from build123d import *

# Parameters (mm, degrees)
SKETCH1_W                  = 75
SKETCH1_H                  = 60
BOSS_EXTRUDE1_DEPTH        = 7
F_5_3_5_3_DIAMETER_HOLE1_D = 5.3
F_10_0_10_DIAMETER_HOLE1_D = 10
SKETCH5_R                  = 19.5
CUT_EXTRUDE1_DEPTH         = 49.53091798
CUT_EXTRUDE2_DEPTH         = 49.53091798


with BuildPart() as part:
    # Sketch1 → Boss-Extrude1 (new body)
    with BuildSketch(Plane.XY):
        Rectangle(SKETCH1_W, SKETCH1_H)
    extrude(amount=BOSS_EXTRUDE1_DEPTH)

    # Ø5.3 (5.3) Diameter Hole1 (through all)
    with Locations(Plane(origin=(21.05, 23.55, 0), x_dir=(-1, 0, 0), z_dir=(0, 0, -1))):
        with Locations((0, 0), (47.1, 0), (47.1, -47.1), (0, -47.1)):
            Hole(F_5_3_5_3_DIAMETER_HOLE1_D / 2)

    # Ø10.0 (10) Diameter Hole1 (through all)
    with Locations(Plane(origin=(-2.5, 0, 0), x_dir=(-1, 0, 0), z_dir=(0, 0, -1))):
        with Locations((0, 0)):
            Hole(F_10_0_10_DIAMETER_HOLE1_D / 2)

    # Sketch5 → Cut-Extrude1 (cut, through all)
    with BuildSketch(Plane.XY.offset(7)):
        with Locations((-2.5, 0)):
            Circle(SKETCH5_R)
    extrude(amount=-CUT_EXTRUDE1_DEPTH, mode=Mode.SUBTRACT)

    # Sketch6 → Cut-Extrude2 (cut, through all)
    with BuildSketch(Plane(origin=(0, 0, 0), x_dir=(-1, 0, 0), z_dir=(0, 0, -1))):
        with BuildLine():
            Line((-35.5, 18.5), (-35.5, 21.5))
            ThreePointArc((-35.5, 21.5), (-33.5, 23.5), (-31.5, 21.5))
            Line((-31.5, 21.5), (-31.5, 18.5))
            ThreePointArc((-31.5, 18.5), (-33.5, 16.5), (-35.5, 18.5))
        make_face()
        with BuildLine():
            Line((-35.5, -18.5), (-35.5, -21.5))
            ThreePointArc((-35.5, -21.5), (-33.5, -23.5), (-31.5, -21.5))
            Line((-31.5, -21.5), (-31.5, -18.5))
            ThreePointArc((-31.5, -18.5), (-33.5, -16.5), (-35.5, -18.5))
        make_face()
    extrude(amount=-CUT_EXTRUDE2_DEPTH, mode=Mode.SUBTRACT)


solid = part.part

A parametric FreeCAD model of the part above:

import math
import FreeCAD as App
import Part
import Sketcher
from FreeCAD import Vector
Q = App.Units.Quantity

doc = App.newDocument("Part")
params = doc.addObject("Spreadsheet::Sheet", "Params")
for row, (alias, value) in enumerate([
    ("sketch1_width", "75 mm"),
    ("sketch1_height", "60 mm"),
    ("pad1_length", "7 mm"),
    ("sketch2_diameter", "5.3 mm"),
    ("hole_diameter", "5.3 mm"),
    ("sketch3_diameter", "10 mm"),
    ("hole2_diameter", "10 mm"),
    ("sketch4_diameter", "39 mm"),
    ("sketch5_radius", "2 mm"),
    ("sketch5_height", "3 mm"),
], start=1):
    params.set(f"A{row}", alias)
    params.set(f"B{row}", "=" + value)
    params.setAlias(f"B{row}", alias)

body = doc.addObject("PartDesign::Body", "Body")

# Sketch on XY plane
sketch1 = body.newObject("Sketcher::SketchObject", "Sketch")
sketch1.AttachmentSupport = (doc.getObject("XY_Plane"), [""])
sketch1.MapMode = "FlatFace"
sketch1.addGeometry(Part.LineSegment(Vector(-38, 30, 0), Vector(-38, -30, 0)), False)
sketch1.addGeometry(Part.LineSegment(Vector(-38, -30, 0), Vector(38, -30, 0)), False)
sketch1.addGeometry(Part.LineSegment(Vector(38, -30, 0), Vector(38, 30, 0)), False)
sketch1.addGeometry(Part.LineSegment(Vector(38, 30, 0), Vector(-38, 30, 0)), False)
sketch1.addConstraint(Sketcher.Constraint("Coincident", 0, 2, 1, 1))
sketch1.addConstraint(Sketcher.Constraint("Coincident", 1, 2, 2, 1))
sketch1.addConstraint(Sketcher.Constraint("Coincident", 2, 2, 3, 1))
sketch1.addConstraint(Sketcher.Constraint("Coincident", 3, 2, 0, 1))
sketch1.addConstraint(Sketcher.Constraint("Vertical", 0))
sketch1.addConstraint(Sketcher.Constraint("Horizontal", 1))
sketch1.addConstraint(Sketcher.Constraint("Vertical", 2))
sketch1.addConstraint(Sketcher.Constraint("Horizontal", 3))
sketch1.addConstraint(Sketcher.Constraint("Symmetric", 0, 2, 2, 2, -1, 1))
sketch1.addConstraint(Sketcher.Constraint("DistanceX", 1, 1, 1, 2, Q("75 mm")))
sketch1.addConstraint(Sketcher.Constraint("DistanceY", 0, 2, 0, 1, Q("60 mm")))
sketch1.setExpression("Constraints[9]", "Params.sketch1_width")
sketch1.setExpression("Constraints[10]", "Params.sketch1_height")
pad1 = body.newObject("PartDesign::Pad", "Pad")
pad1.Profile = sketch1
pad1.setExpression("Length", "Params.pad1_length")

# Sketch on XY plane
sketch2 = body.newObject("Sketcher::SketchObject", "Sketch001")
sketch2.AttachmentSupport = (doc.getObject("XY_Plane"), [""])
sketch2.MapMode = "FlatFace"
sketch2.addGeometry(Part.Circle(Vector(21.1, 23.6, 0), Vector(0, 0, 1), 2.6), False)
sketch2.addGeometry(Part.Circle(Vector(-26.1, 23.6, 0), Vector(0, 0, 1), 2.6), False)
sketch2.addGeometry(Part.Circle(Vector(-26.1, -23.6, 0), Vector(0, 0, 1), 2.6), False)
sketch2.addGeometry(Part.Circle(Vector(21.1, -23.6, 0), Vector(0, 0, 1), 2.6), False)
sketch2.addConstraint(Sketcher.Constraint("Equal", 0, 1))
sketch2.addConstraint(Sketcher.Constraint("Equal", 1, 2))
sketch2.addConstraint(Sketcher.Constraint("Equal", 2, 3))
sketch2.addConstraint(Sketcher.Constraint("Symmetric", 1, 3, 2, 3, -1))
sketch2.addConstraint(Sketcher.Constraint("Symmetric", 0, 3, 3, 3, -1))
sketch2.addConstraint(Sketcher.Constraint("Horizontal", 0, 3, 1, 3))
sketch2.addConstraint(Sketcher.Constraint("Diameter", 0, Q("5.3 mm")))
sketch2.addConstraint(Sketcher.Constraint("DistanceX", 1, 3, 0, 3, Q("47.1 mm")))
sketch2.addConstraint(Sketcher.Constraint("DistanceY", 2, 3, 1, 3, Q("47.1 mm")))
sketch2.addConstraint(Sketcher.Constraint("DistanceX", -1, 1, 0, 3, Q("21.05 mm")))
sketch2.setExpression("Constraints[6]", "Params.sketch2_diameter")
doc.recompute()
hole = body.newObject("PartDesign::Hole", "Hole")
hole.Profile = sketch2
hole.ThreadType = "None"
hole.setExpression("Diameter", "Params.hole_diameter")
hole.DepthType = "ThroughAll"
hole.Reversed = True

# Sketch on XY plane
sketch3 = body.newObject("Sketcher::SketchObject", "Sketch002")
sketch3.AttachmentSupport = (doc.getObject("XY_Plane"), [""])
sketch3.MapMode = "FlatFace"
sketch3.addGeometry(Part.Circle(Vector(-2, 0, 0), Vector(0, 0, 1), 5), False)
sketch3.addConstraint(Sketcher.Constraint("PointOnObject", 0, 3, -1))
sketch3.addConstraint(Sketcher.Constraint("Diameter", 0, Q("10 mm")))
sketch3.addConstraint(Sketcher.Constraint("DistanceX", 0, 3, -1, 1, Q("2.5 mm")))
sketch3.setExpression("Constraints[1]", "Params.sketch3_diameter")
doc.recompute()
hole2 = body.newObject("PartDesign::Hole", "Hole001")
hole2.Profile = sketch3
hole2.ThreadType = "None"
hole2.setExpression("Diameter", "Params.hole2_diameter")
hole2.DepthType = "ThroughAll"
hole2.Reversed = True

# Sketch on XY plane
sketch4 = body.newObject("Sketcher::SketchObject", "Sketch003")
sketch4.AttachmentSupport = (doc.getObject("XY_Plane"), [""])
sketch4.MapMode = "FlatFace"
sketch4.AttachmentOffset = App.Placement(Vector(0, 0, 7), App.Rotation())
sketch4.addGeometry(Part.Circle(Vector(-2, 0, 0), Vector(0, 0, 1), 20), False)
sketch4.addConstraint(Sketcher.Constraint("PointOnObject", 0, 3, -1))
sketch4.addConstraint(Sketcher.Constraint("Diameter", 0, Q("39 mm")))
sketch4.addConstraint(Sketcher.Constraint("DistanceX", 0, 3, -1, 1, Q("2.5 mm")))
sketch4.setExpression("Constraints[1]", "Params.sketch4_diameter")
pocket1 = body.newObject("PartDesign::Pocket", "Pocket")
pocket1.Profile = sketch4
pocket1.Type = "ThroughAll"

# Sketch on XY plane
sketch5 = body.newObject("Sketcher::SketchObject", "Sketch004")
sketch5.AttachmentSupport = (doc.getObject("XY_Plane"), [""])
sketch5.MapMode = "FlatFace"
sketch5.addGeometry(Part.LineSegment(Vector(35.5, 21.5, 0), Vector(35.5, 18.5, 0)), False)
sketch5.addGeometry(Part.ArcOfCircle(Part.Circle(Vector(33.5, 18.5, 0), Vector(0, 0, 1), 2), math.radians(180), math.radians(360)), False)
sketch5.addGeometry(Part.LineSegment(Vector(31.5, 18.5, 0), Vector(31.5, 21.5, 0)), False)
sketch5.addGeometry(Part.ArcOfCircle(Part.Circle(Vector(33.5, 21.5, 0), Vector(0, 0, 1), 2), math.radians(0), math.radians(180)), False)
sketch5.addGeometry(Part.LineSegment(Vector(35.5, -18.5, 0), Vector(35.5, -21.5, 0)), False)
sketch5.addGeometry(Part.ArcOfCircle(Part.Circle(Vector(33.5, -21.5, 0), Vector(0, 0, 1), 2), math.radians(180), math.radians(360)), False)
sketch5.addGeometry(Part.LineSegment(Vector(31.5, -21.5, 0), Vector(31.5, -18.5, 0)), False)
sketch5.addGeometry(Part.ArcOfCircle(Part.Circle(Vector(33.5, -18.5, 0), Vector(0, 0, 1), 2), math.radians(0), math.radians(180)), False)
sketch5.addConstraint(Sketcher.Constraint("Tangent", 0, 2, 1, 2))
sketch5.addConstraint(Sketcher.Constraint("Tangent", 1, 1, 2, 1))
sketch5.addConstraint(Sketcher.Constraint("Tangent", 2, 2, 3, 2))
sketch5.addConstraint(Sketcher.Constraint("Tangent", 3, 1, 0, 1))
sketch5.addConstraint(Sketcher.Constraint("Tangent", 4, 2, 5, 2))
sketch5.addConstraint(Sketcher.Constraint("Tangent", 5, 1, 6, 1))
sketch5.addConstraint(Sketcher.Constraint("Tangent", 6, 2, 7, 2))
sketch5.addConstraint(Sketcher.Constraint("Tangent", 7, 1, 4, 1))
sketch5.addConstraint(Sketcher.Constraint("Vertical", 0))
sketch5.addConstraint(Sketcher.Constraint("Vertical", 2))
sketch5.addConstraint(Sketcher.Constraint("Vertical", 4))
sketch5.addConstraint(Sketcher.Constraint("Vertical", 6))
sketch5.addConstraint(Sketcher.Constraint("Equal", 3, 5))
sketch5.addConstraint(Sketcher.Constraint("Symmetric", 3, 3, 5, 3, -1))
sketch5.addConstraint(Sketcher.Constraint("Equal", 2, 4))
sketch5.addConstraint(Sketcher.Constraint("Radius", 1, Q("2 mm")))
sketch5.addConstraint(Sketcher.Constraint("DistanceY", 0, 2, 0, 1, Q("3 mm")))
sketch5.addConstraint(Sketcher.Constraint("DistanceY", 5, 3, 1, 3, Q("40 mm")))
sketch5.addConstraint(Sketcher.Constraint("DistanceX", -1, 1, 1, 3, Q("33.5 mm")))
sketch5.setExpression("Constraints[15]", "Params.sketch5_radius")
sketch5.setExpression("Constraints[16]", "Params.sketch5_height")
pocket2 = body.newObject("PartDesign::Pocket", "Pocket001")
pocket2.Profile = sketch5
pocket2.Type = "ThroughAll"
pocket2.Reversed = True

doc.recompute()
